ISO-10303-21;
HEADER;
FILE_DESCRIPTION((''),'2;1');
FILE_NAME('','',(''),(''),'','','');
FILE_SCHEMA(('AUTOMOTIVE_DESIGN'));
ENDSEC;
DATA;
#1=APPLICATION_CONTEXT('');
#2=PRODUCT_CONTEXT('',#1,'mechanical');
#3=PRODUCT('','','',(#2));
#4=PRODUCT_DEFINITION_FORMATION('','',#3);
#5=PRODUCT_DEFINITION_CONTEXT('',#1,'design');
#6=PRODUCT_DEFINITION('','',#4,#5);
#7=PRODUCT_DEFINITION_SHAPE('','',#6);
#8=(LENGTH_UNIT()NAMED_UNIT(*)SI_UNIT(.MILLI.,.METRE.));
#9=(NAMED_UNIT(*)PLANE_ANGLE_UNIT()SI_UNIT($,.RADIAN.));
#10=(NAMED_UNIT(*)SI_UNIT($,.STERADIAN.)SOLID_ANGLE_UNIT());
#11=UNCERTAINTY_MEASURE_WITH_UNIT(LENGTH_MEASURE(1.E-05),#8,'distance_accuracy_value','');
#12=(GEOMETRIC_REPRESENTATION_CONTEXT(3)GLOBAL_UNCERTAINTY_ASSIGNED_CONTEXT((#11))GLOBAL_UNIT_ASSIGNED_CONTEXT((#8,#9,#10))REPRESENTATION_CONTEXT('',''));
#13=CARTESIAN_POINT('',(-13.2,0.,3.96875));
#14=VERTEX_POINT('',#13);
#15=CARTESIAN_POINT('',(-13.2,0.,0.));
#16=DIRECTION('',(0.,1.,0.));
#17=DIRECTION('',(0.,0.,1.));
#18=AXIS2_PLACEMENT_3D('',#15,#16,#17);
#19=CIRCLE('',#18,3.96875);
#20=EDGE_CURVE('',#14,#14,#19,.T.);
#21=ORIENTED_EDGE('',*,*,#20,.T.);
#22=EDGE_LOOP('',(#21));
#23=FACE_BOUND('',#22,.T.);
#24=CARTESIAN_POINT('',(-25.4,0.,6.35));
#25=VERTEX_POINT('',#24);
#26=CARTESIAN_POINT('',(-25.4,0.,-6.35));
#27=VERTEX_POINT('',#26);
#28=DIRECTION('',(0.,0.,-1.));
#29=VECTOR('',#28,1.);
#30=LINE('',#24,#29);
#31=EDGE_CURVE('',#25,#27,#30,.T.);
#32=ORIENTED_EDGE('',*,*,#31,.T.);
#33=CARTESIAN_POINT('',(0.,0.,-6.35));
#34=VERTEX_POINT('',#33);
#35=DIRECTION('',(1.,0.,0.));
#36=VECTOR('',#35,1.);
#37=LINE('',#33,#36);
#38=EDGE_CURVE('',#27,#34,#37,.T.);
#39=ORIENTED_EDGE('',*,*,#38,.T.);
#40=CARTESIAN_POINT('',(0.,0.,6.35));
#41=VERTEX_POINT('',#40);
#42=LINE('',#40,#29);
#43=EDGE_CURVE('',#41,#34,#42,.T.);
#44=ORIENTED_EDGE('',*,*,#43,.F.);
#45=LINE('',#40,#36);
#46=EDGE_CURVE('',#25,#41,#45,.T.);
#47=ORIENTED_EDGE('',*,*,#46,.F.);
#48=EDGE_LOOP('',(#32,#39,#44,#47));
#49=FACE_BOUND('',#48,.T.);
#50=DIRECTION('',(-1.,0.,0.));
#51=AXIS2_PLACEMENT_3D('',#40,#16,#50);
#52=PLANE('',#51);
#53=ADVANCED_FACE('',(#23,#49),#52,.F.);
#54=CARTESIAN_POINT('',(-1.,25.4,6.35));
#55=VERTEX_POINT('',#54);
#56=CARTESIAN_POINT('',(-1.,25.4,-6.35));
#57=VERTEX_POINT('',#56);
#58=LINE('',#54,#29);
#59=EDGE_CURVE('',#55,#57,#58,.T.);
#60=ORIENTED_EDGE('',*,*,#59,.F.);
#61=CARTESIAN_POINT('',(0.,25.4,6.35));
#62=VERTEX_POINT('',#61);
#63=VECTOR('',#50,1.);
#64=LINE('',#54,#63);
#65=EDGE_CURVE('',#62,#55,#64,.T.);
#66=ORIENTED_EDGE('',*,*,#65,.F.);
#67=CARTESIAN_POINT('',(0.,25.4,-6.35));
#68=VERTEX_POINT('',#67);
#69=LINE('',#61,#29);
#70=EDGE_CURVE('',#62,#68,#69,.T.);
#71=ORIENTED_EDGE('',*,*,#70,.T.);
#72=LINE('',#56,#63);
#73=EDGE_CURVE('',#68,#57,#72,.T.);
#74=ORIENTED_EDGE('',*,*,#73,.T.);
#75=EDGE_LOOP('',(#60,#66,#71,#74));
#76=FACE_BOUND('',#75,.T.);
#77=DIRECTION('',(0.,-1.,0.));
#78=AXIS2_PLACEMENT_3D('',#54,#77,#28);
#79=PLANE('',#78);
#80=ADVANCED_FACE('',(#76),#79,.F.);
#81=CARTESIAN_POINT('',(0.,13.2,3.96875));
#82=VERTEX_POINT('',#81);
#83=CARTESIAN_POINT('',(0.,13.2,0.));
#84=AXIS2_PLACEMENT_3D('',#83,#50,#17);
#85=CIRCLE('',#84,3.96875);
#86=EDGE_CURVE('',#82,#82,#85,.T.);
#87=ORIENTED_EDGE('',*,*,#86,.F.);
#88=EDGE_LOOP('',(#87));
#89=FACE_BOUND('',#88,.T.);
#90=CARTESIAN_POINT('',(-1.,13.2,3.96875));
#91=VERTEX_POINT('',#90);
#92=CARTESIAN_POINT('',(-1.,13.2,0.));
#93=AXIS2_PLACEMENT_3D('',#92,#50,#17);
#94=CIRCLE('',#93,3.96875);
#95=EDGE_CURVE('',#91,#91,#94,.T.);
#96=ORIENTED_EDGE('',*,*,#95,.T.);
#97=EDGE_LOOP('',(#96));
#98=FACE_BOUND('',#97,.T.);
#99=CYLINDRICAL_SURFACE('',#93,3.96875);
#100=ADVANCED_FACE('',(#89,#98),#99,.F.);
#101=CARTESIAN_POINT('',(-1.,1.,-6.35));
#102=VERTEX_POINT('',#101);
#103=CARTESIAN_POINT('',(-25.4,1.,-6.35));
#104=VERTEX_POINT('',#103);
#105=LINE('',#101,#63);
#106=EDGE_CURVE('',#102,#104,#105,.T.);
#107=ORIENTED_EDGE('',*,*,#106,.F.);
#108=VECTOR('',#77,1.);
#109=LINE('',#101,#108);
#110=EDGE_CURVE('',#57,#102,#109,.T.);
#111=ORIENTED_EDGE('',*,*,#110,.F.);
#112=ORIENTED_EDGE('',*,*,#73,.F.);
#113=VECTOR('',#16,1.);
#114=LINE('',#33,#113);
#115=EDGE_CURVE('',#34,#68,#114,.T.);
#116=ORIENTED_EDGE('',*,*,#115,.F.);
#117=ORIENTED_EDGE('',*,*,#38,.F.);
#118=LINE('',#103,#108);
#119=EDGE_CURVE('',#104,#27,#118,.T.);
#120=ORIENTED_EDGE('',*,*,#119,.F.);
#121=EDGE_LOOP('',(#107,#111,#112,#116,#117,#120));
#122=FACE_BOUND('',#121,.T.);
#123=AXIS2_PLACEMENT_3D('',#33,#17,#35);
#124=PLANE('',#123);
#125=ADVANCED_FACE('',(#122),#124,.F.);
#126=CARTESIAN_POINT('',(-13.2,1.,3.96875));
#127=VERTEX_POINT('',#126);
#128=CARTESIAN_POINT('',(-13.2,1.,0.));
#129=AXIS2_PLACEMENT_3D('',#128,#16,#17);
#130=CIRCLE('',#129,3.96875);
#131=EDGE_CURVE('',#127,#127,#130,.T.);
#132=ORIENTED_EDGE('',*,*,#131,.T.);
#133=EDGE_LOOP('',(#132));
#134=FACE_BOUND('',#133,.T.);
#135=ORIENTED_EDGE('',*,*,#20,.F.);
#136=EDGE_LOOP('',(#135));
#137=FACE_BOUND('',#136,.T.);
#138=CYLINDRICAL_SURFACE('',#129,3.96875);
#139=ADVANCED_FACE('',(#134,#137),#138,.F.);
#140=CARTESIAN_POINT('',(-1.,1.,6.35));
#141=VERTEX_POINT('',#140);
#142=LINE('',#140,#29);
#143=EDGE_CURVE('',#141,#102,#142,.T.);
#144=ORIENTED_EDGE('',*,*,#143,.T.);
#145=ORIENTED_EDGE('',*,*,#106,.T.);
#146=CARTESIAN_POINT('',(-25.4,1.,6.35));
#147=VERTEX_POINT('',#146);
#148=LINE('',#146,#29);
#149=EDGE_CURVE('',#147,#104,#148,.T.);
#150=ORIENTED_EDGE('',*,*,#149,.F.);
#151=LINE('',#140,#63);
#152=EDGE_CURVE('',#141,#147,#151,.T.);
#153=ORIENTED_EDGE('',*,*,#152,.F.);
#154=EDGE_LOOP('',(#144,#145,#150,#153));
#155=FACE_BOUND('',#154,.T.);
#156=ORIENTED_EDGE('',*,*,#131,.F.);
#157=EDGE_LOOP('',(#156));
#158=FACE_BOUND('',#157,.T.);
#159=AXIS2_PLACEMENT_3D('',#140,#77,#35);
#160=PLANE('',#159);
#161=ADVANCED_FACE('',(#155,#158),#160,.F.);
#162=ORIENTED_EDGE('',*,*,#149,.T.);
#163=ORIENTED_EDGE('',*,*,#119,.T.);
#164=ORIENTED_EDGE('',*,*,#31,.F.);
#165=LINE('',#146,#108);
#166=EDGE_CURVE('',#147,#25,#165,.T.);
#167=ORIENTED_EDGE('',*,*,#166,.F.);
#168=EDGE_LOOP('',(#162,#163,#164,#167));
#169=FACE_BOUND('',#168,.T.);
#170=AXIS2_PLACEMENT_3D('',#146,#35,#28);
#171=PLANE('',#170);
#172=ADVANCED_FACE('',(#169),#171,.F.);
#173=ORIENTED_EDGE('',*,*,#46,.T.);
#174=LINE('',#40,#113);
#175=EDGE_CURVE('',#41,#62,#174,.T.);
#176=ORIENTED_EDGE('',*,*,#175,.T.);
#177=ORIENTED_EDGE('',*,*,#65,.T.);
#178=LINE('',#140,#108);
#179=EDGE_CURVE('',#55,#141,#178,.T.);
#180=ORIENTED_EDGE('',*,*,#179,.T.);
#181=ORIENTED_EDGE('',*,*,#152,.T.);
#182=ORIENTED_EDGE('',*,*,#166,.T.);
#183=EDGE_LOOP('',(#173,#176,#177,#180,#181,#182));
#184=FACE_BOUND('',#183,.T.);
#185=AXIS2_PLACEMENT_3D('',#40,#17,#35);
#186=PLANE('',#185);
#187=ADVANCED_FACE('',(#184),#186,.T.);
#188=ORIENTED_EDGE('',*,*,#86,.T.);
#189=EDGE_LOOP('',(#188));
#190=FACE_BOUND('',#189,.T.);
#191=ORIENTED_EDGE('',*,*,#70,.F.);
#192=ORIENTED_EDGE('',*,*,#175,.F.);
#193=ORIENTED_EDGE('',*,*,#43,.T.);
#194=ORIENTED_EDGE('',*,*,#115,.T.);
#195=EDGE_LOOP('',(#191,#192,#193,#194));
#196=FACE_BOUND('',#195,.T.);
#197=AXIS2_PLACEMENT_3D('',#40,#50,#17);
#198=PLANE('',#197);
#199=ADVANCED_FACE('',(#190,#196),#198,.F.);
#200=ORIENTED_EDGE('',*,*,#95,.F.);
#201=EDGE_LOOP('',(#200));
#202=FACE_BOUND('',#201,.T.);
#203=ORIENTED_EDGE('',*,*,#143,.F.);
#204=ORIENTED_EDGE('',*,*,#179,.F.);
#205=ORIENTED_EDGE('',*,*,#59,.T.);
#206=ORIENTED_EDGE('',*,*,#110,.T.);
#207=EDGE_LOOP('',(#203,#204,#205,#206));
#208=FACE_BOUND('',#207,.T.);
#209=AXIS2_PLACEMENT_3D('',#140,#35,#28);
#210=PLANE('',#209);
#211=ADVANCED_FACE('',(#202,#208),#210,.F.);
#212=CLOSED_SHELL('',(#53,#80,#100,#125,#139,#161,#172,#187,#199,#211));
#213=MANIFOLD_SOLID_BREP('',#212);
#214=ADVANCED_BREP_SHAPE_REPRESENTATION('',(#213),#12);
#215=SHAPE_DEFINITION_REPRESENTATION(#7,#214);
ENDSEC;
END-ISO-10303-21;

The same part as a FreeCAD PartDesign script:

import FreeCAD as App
import Part
import Sketcher
from FreeCAD import Vector
Q = App.Units.Quantity

doc = App.newDocument("Part")
body = doc.addObject("PartDesign::Body", "Body")

# Sketch on XY plane
sketch1 = doc.addObject("Sketcher::SketchObject", "Sketch")
body.addObject(sketch1)
sketch1.AttachmentSupport = (doc.XY_Plane, [""])
sketch1.MapMode = "FlatFace"
sketch1.addGeometry([
    Part.LineSegment(Vector(0, 0, 0), Vector(0, 25.4, 0)),  # 0
    Part.LineSegment(Vector(0, 25.4, 0), Vector(-1, 25.4, 0)),  # 1
    Part.LineSegment(Vector(-1, 25.4, 0), Vector(-1, 1, 0)),  # 2
    Part.LineSegment(Vector(-1, 1, 0), Vector(-25.4, 1, 0)),  # 3
    Part.LineSegment(Vector(-25.4, 1, 0), Vector(-25.4, 0, 0)),  # 4
    Part.LineSegment(Vector(-25.4, 0, 0), Vector(0, 0, 0)),  # 5
], False)
sketch1.addConstraint([
    Sketcher.Constraint("Coincident", 0, 2, 1, 1),
    Sketcher.Constraint("Coincident", 1, 2, 2, 1),
    Sketcher.Constraint("Coincident", 2, 2, 3, 1),
    Sketcher.Constraint("Coincident", 3, 2, 4, 1),
    Sketcher.Constraint("Coincident", 4, 2, 5, 1),
    Sketcher.Constraint("Coincident", 5, 2, 0, 1),
    Sketcher.Constraint("Vertical", 0),
    Sketcher.Constraint("Horizontal", 1),
    Sketcher.Constraint("Vertical", 2),
    Sketcher.Constraint("Horizontal", 3),
    Sketcher.Constraint("Vertical", 4),
    Sketcher.Constraint("Horizontal", 5),
    Sketcher.Constraint("Coincident", 5, 2, -1, 1),
    Sketcher.Constraint("Equal", 5, 0),
    Sketcher.Constraint("Equal", 3, 2),
    Sketcher.Constraint("DistanceX", 5, 1, 5, 2, Q("1 in")),
    Sketcher.Constraint("DistanceX", 1, 2, 1, 1, 1.0),
])
pad1 = doc.addObject("PartDesign::Pad", "Pad")
body.addObject(pad1)
pad1.Profile = sketch1
pad1.Length = Q("0.5 in")
pad1.Midplane = True

# Sketch on YZ plane
sketch2 = doc.addObject("Sketcher::SketchObject", "Sketch001")
body.addObject(sketch2)
sketch2.AttachmentSupport = (doc.YZ_Plane, [""])
sketch2.MapMode = "FlatFace"
sketch2.AttachmentOffset = App.Placement(Vector(0, 0, -1), App.Rotation())
sketch2.addGeometry(Part.Circle(Vector(13.2, 0, 0), Vector(0, 0, 1), 4), False)
sketch2.addConstraint([
    Sketcher.Constraint("PointOnObject", 0, 3, -1),
    Sketcher.Constraint("Diameter", 0, Q("0.3125 in")),
    Sketcher.Constraint("DistanceX", -1, 1, 0, 3, 13.2),
])
doc.recompute()
hole = doc.addObject("PartDesign::Hole", "Hole")
body.addObject(hole)
hole.Profile = sketch2
hole.ThreadType = "None"
hole.Diameter = Q("0.3125 in")
hole.DepthType = "ThroughAll"
hole.Reversed = True

# Sketch on XZ plane
sketch3 = doc.addObject("Sketcher::SketchObject", "Sketch002")
body.addObject(sketch3)
sketch3.AttachmentSupport = (doc.XZ_Plane, [""])
sketch3.MapMode = "FlatFace"
sketch3.AttachmentOffset = App.Placement(Vector(0, 0, -1), App.Rotation())
sketch3.addGeometry(Part.Circle(Vector(-13.2, 0, 0), Vector(0, 0, 1), 4), False)
sketch3.addConstraint([
    Sketcher.Constraint("PointOnObject", 0, 3, -1),
    Sketcher.Constraint("Diameter", 0, Q("0.3125 in")),
    Sketcher.Constraint("DistanceX", 0, 3, -1, 1, 13.2),
])
doc.recompute()
hole2 = doc.addObject("PartDesign::Hole", "Hole001")
body.addObject(hole2)
hole2.Profile = sketch3
hole2.ThreadType = "None"
hole2.Diameter = Q("0.3125 in")
hole2.DepthType = "ThroughAll"
hole2.Reversed = True

doc.recompute()
